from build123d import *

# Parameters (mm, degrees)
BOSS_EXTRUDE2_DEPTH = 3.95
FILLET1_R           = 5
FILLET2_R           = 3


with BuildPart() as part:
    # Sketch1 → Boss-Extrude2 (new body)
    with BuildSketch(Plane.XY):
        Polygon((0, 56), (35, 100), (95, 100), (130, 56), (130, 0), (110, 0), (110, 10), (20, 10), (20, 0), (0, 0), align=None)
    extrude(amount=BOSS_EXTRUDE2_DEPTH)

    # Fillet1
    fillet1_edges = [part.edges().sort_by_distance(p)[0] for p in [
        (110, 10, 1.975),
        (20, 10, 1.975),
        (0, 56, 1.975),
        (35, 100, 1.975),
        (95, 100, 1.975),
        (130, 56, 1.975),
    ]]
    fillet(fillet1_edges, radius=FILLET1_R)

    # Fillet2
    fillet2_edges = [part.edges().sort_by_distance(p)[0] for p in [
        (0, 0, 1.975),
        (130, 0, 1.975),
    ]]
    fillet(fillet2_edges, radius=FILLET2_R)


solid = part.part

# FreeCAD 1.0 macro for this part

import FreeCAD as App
import Part
import Sketcher
Q = App.Units.Quantity


def edges_at(feature, points):
    """Names of the edges that pass closest to the given points."""
    edges = feature.Shape.Edges
    near = lambda p: min(range(len(edges)), key=lambda i: edges[i].distToShape(Part.Vertex(*p))[0])
    return sorted({f"Edge{near(p) + 1}" for p in points})

doc = App.newDocument("Part")
body = doc.addObject("PartDesign::Body", "Body")

sketch1 = body.newObject("Sketcher::SketchObject", "Sketch")
sketch1.AttachmentSupport = (doc.getObject("XY_Plane"), [""])
sketch1.MapMode = "FlatFace"
sketch1.addGeometry([
    Part.LineSegment(App.Vector(35, 100, 0), App.Vector(0, 56, 0)),
    Part.LineSegment(App.Vector(0, 56, 0), App.Vector(0, 0, 0)),
    Part.LineSegment(App.Vector(0, 0, 0), App.Vector(20, 0, 0)),
    Part.LineSegment(App.Vector(20, 0, 0), App.Vector(20, 10, 0)),
    Part.LineSegment(App.Vector(20, 10, 0), App.Vector(110, 10, 0)),
    Part.LineSegment(App.Vector(110, 10, 0), App.Vector(110, 0, 0)),
    Part.LineSegment(App.Vector(110, 0, 0), App.Vector(130, 0, 0)),
    Part.LineSegment(App.Vector(130, 0, 0), App.Vector(130, 56, 0)),
    Part.LineSegment(App.Vector(130, 56, 0), App.Vector(95, 100, 0)),
    Part.LineSegment(App.Vector(95, 100, 0), App.Vector(35, 100, 0)),
], False)
sketch1.addConstraint([
    Sketcher.Constraint("Coincident", 0, 2, 1, 1),
    Sketcher.Constraint("Coincident", 1, 2, 2, 1),
    Sketcher.Constraint("Coincident", 2, 2, 3, 1),
    Sketcher.Constraint("Coincident", 3, 2, 4, 1),
    Sketcher.Constraint("Coincident", 4, 2, 5, 1),
    Sketcher.Constraint("Coincident", 5, 2, 6, 1),
    Sketcher.Constraint("Coincident", 6, 2, 7, 1),
    Sketcher.Constraint("Coincident", 7, 2, 8, 1),
    Sketcher.Constraint("Coincident", 8, 2, 9, 1),
    Sketcher.Constraint("Coincident", 9, 2, 0, 1),
    Sketcher.Constraint("Vertical", 1),
    Sketcher.Constraint("Horizontal", 2),
    Sketcher.Constraint("Vertical", 3),
    Sketcher.Constraint("Horizontal", 4),
    Sketcher.Constraint("Vertical", 5),
    Sketcher.Constraint("Horizontal", 6),
    Sketcher.Constraint("Vertical", 7),
    Sketcher.Constraint("Horizontal", 9),
    Sketcher.Constraint("Coincident", 1, 2, -1, 1),
    Sketcher.Constraint("PointOnObject", 5, 2, -1),
    Sketcher.Constraint("Horizontal", 0, 2, 7, 2),
    Sketcher.Constraint("Equal", 2, 6),
    Sketcher.Constraint("Equal", 0, 8),
    Sketcher.Constraint("DistanceX", 2, 1, 2, 2, Q("20 mm")),
    Sketcher.Constraint("DistanceX", 4, 1, 4, 2, Q("90 mm")),
    Sketcher.Constraint("DistanceX", 9, 2, 9, 1, Q("60 mm")),
    Sketcher.Constraint("DistanceY", 1, 2, 1, 1, Q("56 mm")),
    Sketcher.Constraint("DistanceY", 3, 1, 3, 2, Q("10 mm")),
    Sketcher.Constraint("DistanceY", -1, 1, 8, 2, Q("100 mm")),
])
pad1 = body.newObject("PartDesign::Pad", "Pad")
pad1.Profile = sketch1
pad1.Length = 3.95
doc.recompute()

fillet = body.newObject("PartDesign::Fillet", "Fillet")
fillet.Base = (pad1, edges_at(pad1, [
    (110, 10, 1.975),
    (20, 10, 1.975),
    (0, 56, 1.975),
    (35, 100, 1.975),
    (95, 100, 1.975),
    (130, 56, 1.975),
]))
fillet.Radius = 5
doc.recompute()

fillet2 = body.newObject("PartDesign::Fillet", "Fillet001")
fillet2.Base = (fillet, edges_at(fillet, [(0, 0, 1.975), (130, 0, 1.975)]))
fillet2.Radius = 3

doc.recompute()
